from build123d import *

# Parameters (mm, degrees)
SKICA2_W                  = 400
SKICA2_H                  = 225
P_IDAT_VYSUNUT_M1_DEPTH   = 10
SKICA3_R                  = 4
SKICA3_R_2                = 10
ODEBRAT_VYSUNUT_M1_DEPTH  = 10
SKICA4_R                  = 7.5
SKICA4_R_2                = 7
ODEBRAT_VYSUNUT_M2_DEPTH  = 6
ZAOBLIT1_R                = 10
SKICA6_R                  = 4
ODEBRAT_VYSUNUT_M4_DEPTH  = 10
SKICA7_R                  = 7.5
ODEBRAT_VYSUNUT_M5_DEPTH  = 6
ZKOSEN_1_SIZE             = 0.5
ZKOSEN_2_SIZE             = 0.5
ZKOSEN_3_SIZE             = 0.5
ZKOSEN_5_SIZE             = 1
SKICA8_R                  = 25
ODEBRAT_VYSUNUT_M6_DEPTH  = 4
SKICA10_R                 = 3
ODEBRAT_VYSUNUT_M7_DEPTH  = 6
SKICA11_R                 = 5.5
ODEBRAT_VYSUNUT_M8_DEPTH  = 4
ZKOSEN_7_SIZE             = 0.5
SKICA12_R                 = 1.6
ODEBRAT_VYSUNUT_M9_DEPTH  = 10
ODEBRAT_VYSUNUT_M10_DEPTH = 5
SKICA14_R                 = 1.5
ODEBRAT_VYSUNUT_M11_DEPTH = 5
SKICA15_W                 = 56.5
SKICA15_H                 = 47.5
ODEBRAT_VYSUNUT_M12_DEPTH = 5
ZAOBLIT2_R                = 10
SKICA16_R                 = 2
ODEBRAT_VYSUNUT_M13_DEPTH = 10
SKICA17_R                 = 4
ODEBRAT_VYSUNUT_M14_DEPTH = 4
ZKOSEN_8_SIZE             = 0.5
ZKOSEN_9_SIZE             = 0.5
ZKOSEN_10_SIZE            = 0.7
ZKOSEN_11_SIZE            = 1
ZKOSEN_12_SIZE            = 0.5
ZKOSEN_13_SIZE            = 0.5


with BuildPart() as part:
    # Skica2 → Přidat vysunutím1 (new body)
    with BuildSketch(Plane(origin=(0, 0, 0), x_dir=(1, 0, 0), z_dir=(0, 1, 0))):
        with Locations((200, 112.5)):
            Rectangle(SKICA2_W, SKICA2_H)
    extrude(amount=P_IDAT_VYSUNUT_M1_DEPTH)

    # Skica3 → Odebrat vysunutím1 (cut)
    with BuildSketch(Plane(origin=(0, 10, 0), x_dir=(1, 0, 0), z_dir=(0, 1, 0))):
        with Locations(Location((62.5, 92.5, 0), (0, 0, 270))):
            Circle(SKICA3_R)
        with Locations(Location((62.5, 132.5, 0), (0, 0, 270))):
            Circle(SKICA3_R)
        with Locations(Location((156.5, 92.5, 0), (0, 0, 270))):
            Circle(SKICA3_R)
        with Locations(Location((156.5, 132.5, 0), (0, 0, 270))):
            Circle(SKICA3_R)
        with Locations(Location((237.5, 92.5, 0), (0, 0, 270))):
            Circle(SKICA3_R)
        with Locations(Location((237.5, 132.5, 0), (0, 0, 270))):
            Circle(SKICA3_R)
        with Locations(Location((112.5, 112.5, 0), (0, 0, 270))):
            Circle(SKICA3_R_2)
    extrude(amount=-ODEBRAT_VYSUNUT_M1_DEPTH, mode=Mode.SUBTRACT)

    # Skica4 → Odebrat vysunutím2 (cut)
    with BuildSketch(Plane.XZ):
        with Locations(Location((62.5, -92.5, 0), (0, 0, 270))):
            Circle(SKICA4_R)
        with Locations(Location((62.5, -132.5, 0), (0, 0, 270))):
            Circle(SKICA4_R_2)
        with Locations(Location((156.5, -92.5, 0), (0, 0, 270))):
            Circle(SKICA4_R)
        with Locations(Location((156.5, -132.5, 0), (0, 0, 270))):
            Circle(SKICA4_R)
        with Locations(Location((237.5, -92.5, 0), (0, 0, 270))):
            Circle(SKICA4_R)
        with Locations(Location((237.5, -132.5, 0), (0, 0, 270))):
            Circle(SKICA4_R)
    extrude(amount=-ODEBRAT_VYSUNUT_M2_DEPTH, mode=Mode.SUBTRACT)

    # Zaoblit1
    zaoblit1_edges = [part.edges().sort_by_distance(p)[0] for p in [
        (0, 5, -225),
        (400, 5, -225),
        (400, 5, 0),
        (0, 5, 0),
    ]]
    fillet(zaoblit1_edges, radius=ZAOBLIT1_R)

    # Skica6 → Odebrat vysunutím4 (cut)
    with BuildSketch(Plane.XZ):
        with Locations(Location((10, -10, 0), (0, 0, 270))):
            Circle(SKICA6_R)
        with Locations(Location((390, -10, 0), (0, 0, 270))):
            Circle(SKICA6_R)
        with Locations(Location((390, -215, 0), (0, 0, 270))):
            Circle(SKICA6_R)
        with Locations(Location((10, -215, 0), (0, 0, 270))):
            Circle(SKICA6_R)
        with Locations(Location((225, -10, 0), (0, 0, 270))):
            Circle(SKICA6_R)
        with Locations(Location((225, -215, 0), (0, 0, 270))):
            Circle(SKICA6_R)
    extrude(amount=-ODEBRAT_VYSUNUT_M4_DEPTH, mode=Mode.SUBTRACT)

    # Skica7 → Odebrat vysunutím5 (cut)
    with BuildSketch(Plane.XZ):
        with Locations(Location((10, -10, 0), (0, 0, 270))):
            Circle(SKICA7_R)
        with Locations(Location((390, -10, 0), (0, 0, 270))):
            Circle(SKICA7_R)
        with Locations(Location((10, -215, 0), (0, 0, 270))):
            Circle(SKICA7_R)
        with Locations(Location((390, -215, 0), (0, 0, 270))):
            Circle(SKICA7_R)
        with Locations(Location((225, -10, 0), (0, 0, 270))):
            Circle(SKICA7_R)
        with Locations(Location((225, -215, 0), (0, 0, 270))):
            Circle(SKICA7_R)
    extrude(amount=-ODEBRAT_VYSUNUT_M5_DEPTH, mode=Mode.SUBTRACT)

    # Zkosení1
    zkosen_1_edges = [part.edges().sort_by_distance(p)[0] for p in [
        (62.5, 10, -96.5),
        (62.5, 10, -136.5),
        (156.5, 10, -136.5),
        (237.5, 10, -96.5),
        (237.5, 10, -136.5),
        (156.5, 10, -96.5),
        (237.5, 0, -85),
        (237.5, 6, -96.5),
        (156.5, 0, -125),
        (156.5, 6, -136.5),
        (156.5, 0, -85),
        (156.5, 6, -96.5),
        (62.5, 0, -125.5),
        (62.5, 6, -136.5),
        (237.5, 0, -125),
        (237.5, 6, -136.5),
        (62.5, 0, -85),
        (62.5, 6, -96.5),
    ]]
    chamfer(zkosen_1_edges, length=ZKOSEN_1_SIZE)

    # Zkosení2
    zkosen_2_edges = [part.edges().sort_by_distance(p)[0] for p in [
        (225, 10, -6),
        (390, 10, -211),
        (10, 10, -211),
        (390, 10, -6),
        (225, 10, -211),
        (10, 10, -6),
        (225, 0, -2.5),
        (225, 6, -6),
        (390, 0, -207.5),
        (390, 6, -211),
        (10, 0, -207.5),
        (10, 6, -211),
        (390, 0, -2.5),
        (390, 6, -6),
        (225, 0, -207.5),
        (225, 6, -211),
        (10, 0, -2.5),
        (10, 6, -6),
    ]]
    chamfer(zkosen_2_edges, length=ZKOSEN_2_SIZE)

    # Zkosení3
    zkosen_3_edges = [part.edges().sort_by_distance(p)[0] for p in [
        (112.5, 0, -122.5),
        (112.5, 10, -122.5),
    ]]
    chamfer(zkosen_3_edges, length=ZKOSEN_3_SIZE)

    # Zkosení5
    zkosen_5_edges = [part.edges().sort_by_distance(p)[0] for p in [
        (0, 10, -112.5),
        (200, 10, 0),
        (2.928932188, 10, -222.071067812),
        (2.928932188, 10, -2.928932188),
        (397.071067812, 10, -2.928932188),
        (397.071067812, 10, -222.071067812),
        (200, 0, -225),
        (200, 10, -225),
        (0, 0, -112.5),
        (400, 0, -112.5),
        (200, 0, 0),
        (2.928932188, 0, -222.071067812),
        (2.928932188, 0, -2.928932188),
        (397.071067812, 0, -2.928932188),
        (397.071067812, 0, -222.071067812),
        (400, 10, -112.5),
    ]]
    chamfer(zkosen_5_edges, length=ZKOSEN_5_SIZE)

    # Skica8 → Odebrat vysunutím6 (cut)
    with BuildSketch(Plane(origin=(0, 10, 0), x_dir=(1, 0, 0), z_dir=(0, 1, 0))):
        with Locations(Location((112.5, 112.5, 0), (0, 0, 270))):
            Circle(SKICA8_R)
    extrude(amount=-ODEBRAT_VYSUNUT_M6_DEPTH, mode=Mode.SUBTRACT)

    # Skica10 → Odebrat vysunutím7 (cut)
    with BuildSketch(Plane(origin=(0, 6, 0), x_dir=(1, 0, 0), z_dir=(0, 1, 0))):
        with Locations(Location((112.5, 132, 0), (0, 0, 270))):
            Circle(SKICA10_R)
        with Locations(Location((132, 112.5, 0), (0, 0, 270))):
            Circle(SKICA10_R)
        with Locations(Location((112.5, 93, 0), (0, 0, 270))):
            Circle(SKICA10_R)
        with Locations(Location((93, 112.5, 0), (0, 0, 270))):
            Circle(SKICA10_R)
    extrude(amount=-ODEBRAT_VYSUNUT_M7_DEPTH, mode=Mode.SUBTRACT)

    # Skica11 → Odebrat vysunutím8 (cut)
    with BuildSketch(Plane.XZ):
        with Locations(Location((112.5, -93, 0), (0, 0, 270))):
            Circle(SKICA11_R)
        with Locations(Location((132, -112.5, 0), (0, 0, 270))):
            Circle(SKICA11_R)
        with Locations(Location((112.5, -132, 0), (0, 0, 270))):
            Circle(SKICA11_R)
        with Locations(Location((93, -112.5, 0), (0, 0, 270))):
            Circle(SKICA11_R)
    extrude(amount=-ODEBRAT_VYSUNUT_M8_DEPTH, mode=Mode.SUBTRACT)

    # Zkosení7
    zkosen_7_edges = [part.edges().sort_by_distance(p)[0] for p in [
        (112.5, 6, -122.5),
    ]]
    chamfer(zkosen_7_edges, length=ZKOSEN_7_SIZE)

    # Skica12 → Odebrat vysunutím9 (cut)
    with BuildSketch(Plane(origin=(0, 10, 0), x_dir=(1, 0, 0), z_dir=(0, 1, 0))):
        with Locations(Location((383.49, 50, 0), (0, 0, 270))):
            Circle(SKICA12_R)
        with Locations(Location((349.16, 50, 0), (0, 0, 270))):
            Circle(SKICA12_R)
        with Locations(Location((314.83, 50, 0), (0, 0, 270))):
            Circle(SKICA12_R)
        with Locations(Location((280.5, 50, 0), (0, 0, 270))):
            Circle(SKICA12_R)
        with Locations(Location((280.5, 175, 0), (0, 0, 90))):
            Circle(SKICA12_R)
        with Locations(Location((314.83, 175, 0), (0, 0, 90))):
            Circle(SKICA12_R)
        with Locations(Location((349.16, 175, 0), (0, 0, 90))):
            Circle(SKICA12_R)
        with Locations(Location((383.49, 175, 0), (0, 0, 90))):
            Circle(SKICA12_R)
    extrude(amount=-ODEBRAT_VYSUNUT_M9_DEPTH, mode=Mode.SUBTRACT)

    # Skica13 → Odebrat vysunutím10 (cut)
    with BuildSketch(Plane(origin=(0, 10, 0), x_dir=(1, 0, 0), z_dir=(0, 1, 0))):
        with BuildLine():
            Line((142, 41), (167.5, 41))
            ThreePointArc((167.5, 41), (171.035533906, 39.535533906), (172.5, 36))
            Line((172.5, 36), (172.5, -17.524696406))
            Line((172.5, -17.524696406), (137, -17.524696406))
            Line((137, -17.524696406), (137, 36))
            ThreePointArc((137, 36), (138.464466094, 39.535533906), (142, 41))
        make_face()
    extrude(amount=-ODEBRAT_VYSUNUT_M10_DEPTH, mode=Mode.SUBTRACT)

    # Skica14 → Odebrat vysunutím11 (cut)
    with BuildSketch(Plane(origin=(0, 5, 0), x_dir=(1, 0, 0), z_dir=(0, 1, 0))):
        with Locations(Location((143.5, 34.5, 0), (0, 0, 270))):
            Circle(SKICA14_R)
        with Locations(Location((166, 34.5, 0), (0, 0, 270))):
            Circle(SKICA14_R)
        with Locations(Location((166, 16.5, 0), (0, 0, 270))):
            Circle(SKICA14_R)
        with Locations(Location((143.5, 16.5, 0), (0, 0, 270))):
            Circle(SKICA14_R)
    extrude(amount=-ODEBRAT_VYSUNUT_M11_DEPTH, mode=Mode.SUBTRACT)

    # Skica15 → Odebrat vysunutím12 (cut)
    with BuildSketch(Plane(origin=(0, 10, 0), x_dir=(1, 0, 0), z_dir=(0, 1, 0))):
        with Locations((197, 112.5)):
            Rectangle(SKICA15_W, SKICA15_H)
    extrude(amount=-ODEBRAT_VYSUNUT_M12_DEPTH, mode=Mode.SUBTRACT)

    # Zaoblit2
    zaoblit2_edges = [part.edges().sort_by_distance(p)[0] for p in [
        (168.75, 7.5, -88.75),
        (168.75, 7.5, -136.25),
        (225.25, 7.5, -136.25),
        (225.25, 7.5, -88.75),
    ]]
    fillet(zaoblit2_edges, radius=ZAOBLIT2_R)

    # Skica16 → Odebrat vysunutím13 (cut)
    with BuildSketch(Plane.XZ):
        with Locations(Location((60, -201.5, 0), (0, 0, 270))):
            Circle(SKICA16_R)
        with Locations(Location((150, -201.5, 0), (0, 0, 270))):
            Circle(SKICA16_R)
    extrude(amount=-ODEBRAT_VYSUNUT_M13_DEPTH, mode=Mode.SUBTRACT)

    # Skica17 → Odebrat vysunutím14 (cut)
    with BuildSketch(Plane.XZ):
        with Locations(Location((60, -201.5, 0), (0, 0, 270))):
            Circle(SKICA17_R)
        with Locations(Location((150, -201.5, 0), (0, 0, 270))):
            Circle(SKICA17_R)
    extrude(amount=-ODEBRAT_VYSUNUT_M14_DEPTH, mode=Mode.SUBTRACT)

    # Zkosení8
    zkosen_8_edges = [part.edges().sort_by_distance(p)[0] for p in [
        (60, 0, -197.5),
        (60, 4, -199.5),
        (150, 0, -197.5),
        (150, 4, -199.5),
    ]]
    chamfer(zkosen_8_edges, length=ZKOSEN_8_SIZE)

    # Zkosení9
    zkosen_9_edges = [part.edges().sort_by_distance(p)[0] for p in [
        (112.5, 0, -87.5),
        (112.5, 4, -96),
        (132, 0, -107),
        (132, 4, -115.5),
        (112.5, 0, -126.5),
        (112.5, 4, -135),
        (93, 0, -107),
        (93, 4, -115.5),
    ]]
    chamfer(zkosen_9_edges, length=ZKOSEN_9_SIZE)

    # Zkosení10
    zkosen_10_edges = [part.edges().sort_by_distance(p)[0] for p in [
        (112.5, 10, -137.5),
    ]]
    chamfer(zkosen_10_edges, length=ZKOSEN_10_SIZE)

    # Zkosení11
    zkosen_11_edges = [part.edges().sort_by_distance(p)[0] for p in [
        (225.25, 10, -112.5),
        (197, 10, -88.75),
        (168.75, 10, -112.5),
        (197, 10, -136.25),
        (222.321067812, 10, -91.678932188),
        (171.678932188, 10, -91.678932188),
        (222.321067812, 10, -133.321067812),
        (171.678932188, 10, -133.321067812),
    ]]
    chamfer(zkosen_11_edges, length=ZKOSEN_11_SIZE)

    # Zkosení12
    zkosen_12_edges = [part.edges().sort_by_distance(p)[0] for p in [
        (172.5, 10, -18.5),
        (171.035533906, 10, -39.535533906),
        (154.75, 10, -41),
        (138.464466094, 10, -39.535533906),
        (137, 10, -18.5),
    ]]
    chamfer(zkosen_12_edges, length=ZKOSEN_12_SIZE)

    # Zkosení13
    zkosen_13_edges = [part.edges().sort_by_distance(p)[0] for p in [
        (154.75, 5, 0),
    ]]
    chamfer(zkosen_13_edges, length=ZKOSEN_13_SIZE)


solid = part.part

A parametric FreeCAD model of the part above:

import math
import FreeCAD as App
import Part
import Sketcher
Q = App.Units.Quantity


def edges_at(feature, points):
    """Names of the edges that pass closest to the given points."""
    edges = feature.Shape.Edges
    near = lambda p: min(range(len(edges)), key=lambda i: edges[i].distToShape(Part.Vertex(*p))[0])
    return sorted({f"Edge{near(p) + 1}" for p in points})

doc = App.newDocument("Part")
body = doc.addObject("PartDesign::Body", "Body")

# Sketch on XZ plane
sketch1 = body.newObject("Sketcher::SketchObject", "Sketch")
sketch1.AttachmentSupport = (doc.getObject("XZ_Plane"), [""])
sketch1.MapMode = "FlatFace"
sketch1.addGeometry([
    Part.LineSegment(App.Vector(0, -225, 0), App.Vector(0, 0, 0)),
    Part.LineSegment(App.Vector(0, 0, 0), App.Vector(400, 0, 0)),
    Part.LineSegment(App.Vector(400, 0, 0), App.Vector(400, -225, 0)),
    Part.LineSegment(App.Vector(400, -225, 0), App.Vector(0, -225, 0)),
], False)
sketch1.addConstraint([
    Sketcher.Constraint("Coincident", 0, 2, 1, 1),
    Sketcher.Constraint("Coincident", 1, 2, 2, 1),
    Sketcher.Constraint("Coincident", 2, 2, 3, 1),
    Sketcher.Constraint("Coincident", 3, 2, 0, 1),
    Sketcher.Constraint("Vertical", 0),
    Sketcher.Constraint("Horizontal", 1),
    Sketcher.Constraint("Vertical", 2),
    Sketcher.Constraint("Horizontal", 3),
    Sketcher.Constraint("Coincident", 0, 2, -1, 1),
    Sketcher.Constraint("DistanceX", 1, 1, 1, 2, Q("400 mm")),
    Sketcher.Constraint("DistanceY", 0, 1, 0, 2, Q("225 mm")),
])
pad1 = body.newObject("PartDesign::Pad", "Pad")
pad1.Profile = sketch1
pad1.Length = 10
pad1.Reversed = True

# Sketch on XZ plane
sketch2 = body.newObject("Sketcher::SketchObject", "Sketch001")
sketch2.AttachmentSupport = (doc.getObject("XZ_Plane"), [""])
sketch2.MapMode = "FlatFace"
sketch2.AttachmentOffset = App.Placement(App.Vector(0, 0, -10), App.Rotation())
sketch2.addGeometry([
    Part.Circle(App.Vector(62.5, -92.5, 0), App.Vector(0, 0, 1), 4),  # 0
    Part.Circle(App.Vector(62.5, -132.5, 0), App.Vector(0, 0, 1), 4),  # 1
    Part.Circle(App.Vector(156.5, -92.5, 0), App.Vector(0, 0, 1), 4),  # 2
    Part.Circle(App.Vector(156.5, -132.5, 0), App.Vector(0, 0, 1), 4),  # 3
    Part.Circle(App.Vector(237.5, -92.5, 0), App.Vector(0, 0, 1), 4),  # 4
    Part.Circle(App.Vector(237.5, -132.5, 0), App.Vector(0, 0, 1), 4),  # 5
    Part.Circle(App.Vector(112.5, -112.5, 0), App.Vector(0, 0, 1), 10),  # 6
], False)
sketch2.addConstraint([
    Sketcher.Constraint("Equal", 0, 1),
    Sketcher.Constraint("Equal", 1, 2),
    Sketcher.Constraint("Equal", 2, 3),
    Sketcher.Constraint("Equal", 3, 4),
    Sketcher.Constraint("Equal", 4, 5),
    Sketcher.Constraint("Horizontal", 0, 3, 2, 3),
    Sketcher.Constraint("Horizontal", 1, 3, 3, 3),
    Sketcher.Constraint("Horizontal", 2, 3, 4, 3),
    Sketcher.Constraint("Horizontal", 3, 3, 5, 3),
    Sketcher.Constraint("Vertical", 0, 3, 1, 3),
    Sketcher.Constraint("Vertical", 2, 3, 3, 3),
    Sketcher.Constraint("Vertical", 4, 3, 5, 3),
    Sketcher.Constraint("Diameter", 0, Q("8 mm")),
    Sketcher.Constraint("Diameter", 6, Q("20 mm")),
    Sketcher.Constraint("DistanceY", 1, 3, 0, 3, Q("40 mm")),
    Sketcher.Constraint("DistanceX", 0, 3, 2, 3, Q("94 mm")),
    Sketcher.Constraint("DistanceX", 2, 3, 4, 3, Q("81 mm")),
    Sketcher.Constraint("DistanceX", 6, 3, 2, 3, Q("44 mm")),
    Sketcher.Constraint("DistanceY", 6, 3, 2, 3, Q("20 mm")),
    Sketcher.Constraint("DistanceX", -1, 1, 0, 3, Q("62.5 mm")),
    Sketcher.Constraint("DistanceY", 0, 3, -1, 1, Q("92.5 mm")),
])
pocket1 = body.newObject("PartDesign::Pocket", "Pocket")
pocket1.Profile = sketch2
pocket1.Length = 10
pocket1.Reversed = True

# Sketch on XZ plane
sketch3 = body.newObject("Sketcher::SketchObject", "Sketch002")
sketch3.AttachmentSupport = (doc.getObject("XZ_Plane"), [""])
sketch3.MapMode = "FlatFace"
sketch3.addGeometry([
    Part.Circle(App.Vector(62, -92, 0), App.Vector(0, 0, 1), 8),  # 0
    Part.Circle(App.Vector(62, -132, 0), App.Vector(0, 0, 1), 7),  # 1
    Part.Circle(App.Vector(156, -92, 0), App.Vector(0, 0, 1), 8),  # 2
    Part.Circle(App.Vector(156, -132, 0), App.Vector(0, 0, 1), 8),  # 3
    Part.Circle(App.Vector(238, -92, 0), App.Vector(0, 0, 1), 8),  # 4
    Part.Circle(App.Vector(238, -132, 0), App.Vector(0, 0, 1), 8),  # 5
], False)
sketch3.addConstraint([
    Sketcher.Constraint("Equal", 0, 2),
    Sketcher.Constraint("Equal", 2, 3),
    Sketcher.Constraint("Equal", 3, 4),
    Sketcher.Constraint("Equal", 4, 5),
    Sketcher.Constraint("Horizontal", 0, 3, 2, 3),
    Sketcher.Constraint("Horizontal", 1, 3, 3, 3),
    Sketcher.Constraint("Horizontal", 2, 3, 4, 3),
    Sketcher.Constraint("Horizontal", 3, 3, 5, 3),
    Sketcher.Constraint("Vertical", 0, 3, 1, 3),
    Sketcher.Constraint("Vertical", 2, 3, 3, 3),
    Sketcher.Constraint("Vertical", 4, 3, 5, 3),
    Sketcher.Constraint("Diameter", 0, Q("15 mm")),
    Sketcher.Constraint("Diameter", 1, Q("14 mm")),
    Sketcher.Constraint("DistanceY", 1, 3, 0, 3, Q("40 mm")),
    Sketcher.Constraint("DistanceX", 0, 3, 2, 3, Q("94 mm")),
    Sketcher.Constraint("DistanceX", 2, 3, 4, 3, Q("81 mm")),
    Sketcher.Constraint("DistanceX", -1, 1, 0, 3, Q("62.5 mm")),
    Sketcher.Constraint("DistanceY", 0, 3, -1, 1, Q("92.5 mm")),
])
pocket2 = body.newObject("PartDesign::Pocket", "Pocket001")
pocket2.Profile = sketch3
pocket2.Length = 6
doc.recompute()

fillet = body.newObject("PartDesign::Fillet", "Fillet")
fillet.Base = (pocket2, edges_at(pocket2, [
    (0, 5, -225),
    (400, 5, -225),
    (400, 5, 0),
    (0, 5, 0),
]))
fillet.Radius = 10

# Sketch on XZ plane
sketch4 = body.newObject("Sketcher::SketchObject", "Sketch003")
sketch4.AttachmentSupport = (doc.getObject("XZ_Plane"), [""])
sketch4.MapMode = "FlatFace"
sketch4.addGeometry([
    Part.Circle(App.Vector(10, -10, 0), App.Vector(0, 0, 1), 4),  # 0
    Part.Circle(App.Vector(390, -10, 0), App.Vector(0, 0, 1), 4),  # 1
    Part.Circle(App.Vector(390, -215, 0), App.Vector(0, 0, 1), 4),  # 2
    Part.Circle(App.Vector(10, -215, 0), App.Vector(0, 0, 1), 4),  # 3
    Part.Circle(App.Vector(225, -10, 0), App.Vector(0, 0, 1), 4),  # 4
    Part.Circle(App.Vector(225, -215, 0), App.Vector(0, 0, 1), 4),  # 5
], False)
sketch4.addConstraint([
    Sketcher.Constraint("Equal", 0, 1),
    Sketcher.Constraint("Equal", 1, 2),
    Sketcher.Constraint("Equal", 2, 3),
    Sketcher.Constraint("Equal", 3, 4),
    Sketcher.Constraint("Equal", 4, 5),
    Sketcher.Constraint("Horizontal", 0, 3, 1, 3),
    Sketcher.Constraint("Horizontal", 2, 3, 3, 3),
    Sketcher.Constraint("Horizontal", 1, 3, 4, 3),
    Sketcher.Constraint("Horizontal", 3, 3, 5, 3),
    Sketcher.Constraint("Vertical", 1, 3, 2, 3),
    Sketcher.Constraint("Vertical", 0, 3, 3, 3),
    Sketcher.Constraint("Vertical", 4, 3, 5, 3),
    Sketcher.Constraint("Diameter", 0, Q("8 mm")),
    Sketcher.Constraint("DistanceX", -1, 1, 0, 3, Q("10 mm")),
    Sketcher.Constraint("DistanceY", 0, 3, -1, 1, Q("10 mm")),
    Sketcher.Constraint("DistanceX", -1, 1, 1, 3, Q("390 mm")),
    Sketcher.Constraint("DistanceY", 2, 3, -1, 1, Q("215 mm")),
    Sketcher.Constraint("DistanceX", -1, 1, 4, 3, Q("225 mm")),
])
pocket3 = body.newObject("PartDesign::Pocket", "Pocket002")
pocket3.Profile = sketch4
pocket3.Length = 10

# Sketch on XZ plane
sketch5 = body.newObject("Sketcher::SketchObject", "Sketch004")
sketch5.AttachmentSupport = (doc.getObject("XZ_Plane"), [""])
sketch5.MapMode = "FlatFace"
sketch5.addGeometry([
    Part.Circle(App.Vector(10, -10, 0), App.Vector(0, 0, 1), 8),  # 0
    Part.Circle(App.Vector(390, -10, 0), App.Vector(0, 0, 1), 8),  # 1
    Part.Circle(App.Vector(10, -215, 0), App.Vector(0, 0, 1), 8),  # 2
    Part.Circle(App.Vector(390, -215, 0), App.Vector(0, 0, 1), 8),  # 3
    Part.Circle(App.Vector(225, -10, 0), App.Vector(0, 0, 1), 8),  # 4
    Part.Circle(App.Vector(225, -215, 0), App.Vector(0, 0, 1), 8),  # 5
], False)
sketch5.addConstraint([
    Sketcher.Constraint("Equal", 0, 1),
    Sketcher.Constraint("Equal", 1, 2),
    Sketcher.Constraint("Equal", 2, 3),
    Sketcher.Constraint("Equal", 3, 4),
    Sketcher.Constraint("Equal", 4, 5),
    Sketcher.Constraint("Horizontal", 0, 3, 1, 3),
    Sketcher.Constraint("Horizontal", 2, 3, 3, 3),
    Sketcher.Constraint("Horizontal", 1, 3, 4, 3),
    Sketcher.Constraint("Horizontal", 3, 3, 5, 3),
    Sketcher.Constraint("Vertical", 0, 3, 2, 3),
    Sketcher.Constraint("Vertical", 1, 3, 3, 3),
    Sketcher.Constraint("Vertical", 4, 3, 5, 3),
    Sketcher.Constraint("Diameter", 0, Q("15 mm")),
    Sketcher.Constraint("DistanceX", -1, 1, 0, 3, Q("10 mm")),
    Sketcher.Constraint("DistanceY", 0, 3, -1, 1, Q("10 mm")),
    Sketcher.Constraint("DistanceX", -1, 1, 1, 3, Q("390 mm")),
    Sketcher.Constraint("DistanceY", 2, 3, -1, 1, Q("215 mm")),
    Sketcher.Constraint("DistanceX", -1, 1, 4, 3, Q("225 mm")),
])
pocket4 = body.newObject("PartDesign::Pocket", "Pocket003")
pocket4.Profile = sketch5
pocket4.Length = 6
doc.recompute()

chamfer = body.newObject("PartDesign::Chamfer", "Chamfer")
chamfer.Base = (pocket4, edges_at(pocket4, [
    (62.5, 10, -96.5),
    (62.5, 10, -136.5),
    (156.5, 10, -136.5),
    (237.5, 10, -96.5),
    (237.5, 10, -136.5),
    (156.5, 10, -96.5),
    (237.5, 0, -85),
    (237.5, 6, -96.5),
    (156.5, 0, -125),
    (156.5, 6, -136.5),
    (156.5, 0, -85),
    (156.5, 6, -96.5),
    (62.5, 0, -125.5),
    (62.5, 6, -136.5),
    (237.5, 0, -125),
    (237.5, 6, -136.5),
    (62.5, 0, -85),
    (62.5, 6, -96.5),
]))
chamfer.Size = 0.5
doc.recompute()

chamfer2 = body.newObject("PartDesign::Chamfer", "Chamfer001")
chamfer2.Base = (chamfer, edges_at(chamfer, [
    (225, 10, -6),
    (390, 10, -211),
    (10, 10, -211),
    (390, 10, -6),
    (225, 10, -211),
    (10, 10, -6),
    (225, 0, -2.5),
    (225, 6, -6),
    (390, 0, -207.5),
    (390, 6, -211),
    (10, 0, -207.5),
    (10, 6, -211),
    (390, 0, -2.5),
    (390, 6, -6),
    (225, 0, -207.5),
    (225, 6, -211),
    (10, 0, -2.5),
    (10, 6, -6),
]))
chamfer2.Size = 0.5
doc.recompute()

chamfer3 = body.newObject("PartDesign::Chamfer", "Chamfer002")
chamfer3.Base = (chamfer2, edges_at(chamfer2, [(112.5, 0, -122.5), (112.5, 10, -122.5)]))
chamfer3.Size = 0.5
doc.recompute()

chamfer4 = body.newObject("PartDesign::Chamfer", "Chamfer003")
chamfer4.Base = (chamfer3, edges_at(chamfer3, [
    (0, 10, -112.5),
    (200, 10, 0),
    (2.929, 10, -222.071),
    (2.929, 10, -2.929),
    (397.071, 10, -2.929),
    (397.071, 10, -222.071),
    (200, 0, -225),
    (200, 10, -225),
    (0, 0, -112.5),
    (400, 0, -112.5),
    (200, 0, 0),
    (2.929, 0, -222.071),
    (2.929, 0, -2.929),
    (397.071, 0, -2.929),
    (397.071, 0, -222.071),
    (400, 10, -112.5),
]))
chamfer4.Size = 1

# Sketch on XZ plane
sketch6 = body.newObject("Sketcher::SketchObject", "Sketch005")
sketch6.AttachmentSupport = (doc.getObject("XZ_Plane"), [""])
sketch6.MapMode = "FlatFace"
sketch6.AttachmentOffset = App.Placement(App.Vector(0, 0, -10), App.Rotation())
sketch6.addGeometry(Part.Circle(App.Vector(112, -112, 0), App.Vector(0, 0, 1), 25), False)
sketch6.addConstraint([
    Sketcher.Constraint("Diameter", 0, Q("50 mm")),
    Sketcher.Constraint("DistanceX", -1, 1, 0, 3, Q("112.5 mm")),
    Sketcher.Constraint("DistanceY", 0, 3, -1, 1, Q("112.5 mm")),
])
pocket5 = body.newObject("PartDesign::Pocket", "Pocket004")
pocket5.Profile = sketch6
pocket5.Length = 4
pocket5.Reversed = True

# Sketch on XZ plane
sketch7 = body.newObject("Sketcher::SketchObject", "Sketch006")
sketch7.AttachmentSupport = (doc.getObject("XZ_Plane"), [""])
sketch7.MapMode = "FlatFace"
sketch7.AttachmentOffset = App.Placement(App.Vector(0, 0, -6), App.Rotation())
sketch7.addGeometry([
    Part.Circle(App.Vector(112.5, -132, 0), App.Vector(0, 0, 1), 3),
    Part.Circle(App.Vector(132, -112.5, 0), App.Vector(0, 0, 1), 3),
    Part.Circle(App.Vector(112.5, -93, 0), App.Vector(0, 0, 1), 3),
    Part.Circle(App.Vector(93, -112.5, 0), App.Vector(0, 0, 1), 3),
], False)
sketch7.addConstraint([
    Sketcher.Constraint("Equal", 0, 1),
    Sketcher.Constraint("Equal", 1, 2),
    Sketcher.Constraint("Equal", 2, 3),
    Sketcher.Constraint("Horizontal", 1, 3, 3, 3),
    Sketcher.Constraint("Vertical", 0, 3, 2, 3),
    Sketcher.Constraint("Diameter", 0, Q("6 mm")),
    Sketcher.Constraint("DistanceY", 0, 3, -1, 1, Q("132 mm")),
    Sketcher.Constraint("DistanceX", -1, 1, 1, 3, Q("132 mm")),
    Sketcher.Constraint("DistanceY", 2, 3, -1, 1, Q("93 mm")),
    Sketcher.Constraint("DistanceX", -1, 1, 3, 3, Q("93 mm")),
    Sketcher.Constraint("DistanceX", -1, 1, 0, 3, Q("112.5 mm")),
    Sketcher.Constraint("DistanceY", 1, 3, -1, 1, Q("112.5 mm")),
])
pocket6 = body.newObject("PartDesign::Pocket", "Pocket005")
pocket6.Profile = sketch7
pocket6.Length = 6
pocket6.Reversed = True

# Sketch on XZ plane
sketch8 = body.newObject("Sketcher::SketchObject", "Sketch007")
sketch8.AttachmentSupport = (doc.getObject("XZ_Plane"), [""])
sketch8.MapMode = "FlatFace"
sketch8.addGeometry([
    Part.Circle(App.Vector(112, -93, 0), App.Vector(0, 0, 1), 6),
    Part.Circle(App.Vector(132, -112, 0), App.Vector(0, 0, 1), 6),
    Part.Circle(App.Vector(112, -132, 0), App.Vector(0, 0, 1), 6),
    Part.Circle(App.Vector(93, -112, 0), App.Vector(0, 0, 1), 6),
], False)
sketch8.addConstraint([
    Sketcher.Constraint("Equal", 0, 1),
    Sketcher.Constraint("Equal", 1, 2),
    Sketcher.Constraint("Equal", 2, 3),
    Sketcher.Constraint("Horizontal", 1, 3, 3, 3),
    Sketcher.Constraint("Vertical", 0, 3, 2, 3),
    Sketcher.Constraint("Diameter", 0, Q("11 mm")),
    Sketcher.Constraint("DistanceY", 0, 3, -1, 1, Q("93 mm")),
    Sketcher.Constraint("DistanceX", -1, 1, 1, 3, Q("132 mm")),
    Sketcher.Constraint("DistanceY", 2, 3, -1, 1, Q("132 mm")),
    Sketcher.Constraint("DistanceX", -1, 1, 3, 3, Q("93 mm")),
    Sketcher.Constraint("DistanceX", -1, 1, 0, 3, Q("112.5 mm")),
    Sketcher.Constraint("DistanceY", 1, 3, -1, 1, Q("112.5 mm")),
])
pocket7 = body.newObject("PartDesign::Pocket", "Pocket006")
pocket7.Profile = sketch8
pocket7.Length = 4
doc.recompute()

chamfer5 = body.newObject("PartDesign::Chamfer", "Chamfer004")
chamfer5.Base = (pocket7, edges_at(pocket7, [(112.5, 6, -122.5)]))
chamfer5.Size = 0.5

# Sketch on XZ plane
sketch9 = body.newObject("Sketcher::SketchObject", "Sketch008")
sketch9.AttachmentSupport = (doc.getObject("XZ_Plane"), [""])
sketch9.MapMode = "FlatFace"
sketch9.AttachmentOffset = App.Placement(App.Vector(0, 0, -10), App.Rotation())
sketch9.addGeometry([
    Part.Circle(App.Vector(383.5, -50, 0), App.Vector(0, 0, 1), 1.6),  # 0
    Part.Circle(App.Vector(349.2, -50, 0), App.Vector(0, 0, 1), 1.6),  # 1
    Part.Circle(App.Vector(314.8, -50, 0), App.Vector(0, 0, 1), 1.6),  # 2
    Part.Circle(App.Vector(280.5, -50, 0), App.Vector(0, 0, 1), 1.6),  # 3
    Part.Circle(App.Vector(280.5, -175, 0), App.Vector(0, 0, 1), 1.6),  # 4
    Part.Circle(App.Vector(314.8, -175, 0), App.Vector(0, 0, 1), 1.6),  # 5
    Part.Circle(App.Vector(349.2, -175, 0), App.Vector(0, 0, 1), 1.6),  # 6
    Part.Circle(App.Vector(383.5, -175, 0), App.Vector(0, 0, 1), 1.6),  # 7
], False)
sketch9.addConstraint([
    Sketcher.Constraint("Equal", 0, 1),
    Sketcher.Constraint("Equal", 1, 2),
    Sketcher.Constraint("Equal", 2, 3),
    Sketcher.Constraint("Equal", 3, 4),
    Sketcher.Constraint("Equal", 4, 5),
    Sketcher.Constraint("Equal", 5, 6),
    Sketcher.Constraint("Equal", 6, 7),
    Sketcher.Constraint("Horizontal", 0, 3, 1, 3),
    Sketcher.Constraint("Horizontal", 1, 3, 2, 3),
    Sketcher.Constraint("Horizontal", 2, 3, 3, 3),
    Sketcher.Constraint("Horizontal", 4, 3, 5, 3),
    Sketcher.Constraint("Horizontal", 5, 3, 6, 3),
    Sketcher.Constraint("Horizontal", 6, 3, 7, 3),
    Sketcher.Constraint("Vertical", 3, 3, 4, 3),
    Sketcher.Constraint("Vertical", 2, 3, 5, 3),
    Sketcher.Constraint("Vertical", 1, 3, 6, 3),
    Sketcher.Constraint("Vertical", 0, 3, 7, 3),
    Sketcher.Constraint("Diameter", 0, Q("3.2 mm")),
    Sketcher.Constraint("DistanceY", 0, 3, -1, 1, Q("50 mm")),
    Sketcher.Constraint("DistanceY", 4, 3, -1, 1, Q("175 mm")),
    Sketcher.Constraint("DistanceX", -1, 1, 3, 3, Q("280.5 mm")),
    Sketcher.Constraint("DistanceX", -1, 1, 0, 3, Q("383.49 mm")),
    Sketcher.Constraint("DistanceX", -1, 1, 1, 3, Q("349.16 mm")),
    Sketcher.Constraint("DistanceX", -1, 1, 2, 3, Q("314.83 mm")),
])
pocket8 = body.newObject("PartDesign::Pocket", "Pocket007")
pocket8.Profile = sketch9
pocket8.Length = 10
pocket8.Reversed = True

# Sketch on XZ plane
sketch10 = body.newObject("Sketcher::SketchObject", "Sketch009")
sketch10.AttachmentSupport = (doc.getObject("XZ_Plane"), [""])
sketch10.MapMode = "FlatFace"
sketch10.AttachmentOffset = App.Placement(App.Vector(0, 0, -10), App.Rotation())
sketch10.addGeometry([
    Part.LineSegment(App.Vector(168, -41, 0), App.Vector(142, -41, 0)),  # 0
    Part.ArcOfCircle(Part.Circle(App.Vector(142, -36, 0), App.Vector(0, 0, 1), 5), math.radians(180), math.radians(270)),  # 1
    Part.LineSegment(App.Vector(137, -36, 0), App.Vector(137, 18, 0)),  # 2
    Part.LineSegment(App.Vector(137, 18, 0), App.Vector(172, 18, 0)),  # 3
    Part.LineSegment(App.Vector(172, 18, 0), App.Vector(172, -36, 0)),  # 4
    Part.ArcOfCircle(Part.Circle(App.Vector(168, -36, 0), App.Vector(0, 0, 1), 5), math.radians(-90), math.radians(0)),  # 5
], False)
sketch10.addConstraint([
    Sketcher.Constraint("Tangent", 0, 2, 1, 2),
    Sketcher.Constraint("Tangent", 1, 1, 2, 1),
    Sketcher.Constraint("Coincident", 2, 2, 3, 1),
    Sketcher.Constraint("Coincident", 3, 2, 4, 1),
    Sketcher.Constraint("Tangent", 4, 2, 5, 2),
    Sketcher.Constraint("Tangent", 5, 1, 0, 1),
    Sketcher.Constraint("Horizontal", 0),
    Sketcher.Constraint("Vertical", 2),
    Sketcher.Constraint("Horizontal", 3),
    Sketcher.Constraint("Vertical", 4),
    Sketcher.Constraint("Equal", 1, 5),
    Sketcher.Constraint("Radius", 1, Q("5 mm")),
    Sketcher.Constraint("DistanceX", 0, 2, 0, 1, Q("25.5 mm")),
    Sketcher.Constraint("DistanceX", -1, 1, 1, 3, Q("142 mm")),
    Sketcher.Constraint("DistanceY", 1, 3, -1, 1, Q("36 mm")),
    Sketcher.Constraint("DistanceY", 2, 1, 2, 2, Q("53.524696 mm")),
])
pocket9 = body.newObject("PartDesign::Pocket", "Pocket008")
pocket9.Profile = sketch10
pocket9.Length = 5
pocket9.Reversed = True

# Sketch on XZ plane
sketch11 = body.newObject("Sketcher::SketchObject", "Sketch010")
sketch11.AttachmentSupport = (doc.getObject("XZ_Plane"), [""])
sketch11.MapMode = "FlatFace"
sketch11.AttachmentOffset = App.Placement(App.Vector(0, 0, -5), App.Rotation())
sketch11.addGeometry([
    Part.Circle(App.Vector(143.5, -34.5, 0), App.Vector(0, 0, 1), 1.5),
    Part.Circle(App.Vector(166, -34.5, 0), App.Vector(0, 0, 1), 1.5),
    Part.Circle(App.Vector(166, -16.5, 0), App.Vector(0, 0, 1), 1.5),
    Part.Circle(App.Vector(143.5, -16.5, 0), App.Vector(0, 0, 1), 1.5),
], False)
sketch11.addConstraint([
    Sketcher.Constraint("Equal", 0, 1),
    Sketcher.Constraint("Equal", 1, 2),
    Sketcher.Constraint("Equal", 2, 3),
    Sketcher.Constraint("Horizontal", 0, 3, 1, 3),
    Sketcher.Constraint("Horizontal", 2, 3, 3, 3),
    Sketcher.Constraint("Vertical", 1, 3, 2, 3),
    Sketcher.Constraint("Vertical", 0, 3, 3, 3),
    Sketcher.Constraint("Diameter", 0, Q("3 mm")),
    Sketcher.Constraint("DistanceX", -1, 1, 1, 3, Q("166 mm")),
    Sketcher.Constraint("DistanceY", 1, 3, 2, 3, Q("18 mm")),
    Sketcher.Constraint("DistanceX", -1, 1, 0, 3, Q("143.5 mm")),
    Sketcher.Constraint("DistanceY", 0, 3, -1, 1, Q("34.5 mm")),
])
pocket10 = body.newObject("PartDesign::Pocket", "Pocket009")
pocket10.Profile = sketch11
pocket10.Length = 5
pocket10.Reversed = True

# Sketch on XZ plane
sketch12 = body.newObject("Sketcher::SketchObject", "Sketch011")
sketch12.AttachmentSupport = (doc.getObject("XZ_Plane"), [""])
sketch12.MapMode = "FlatFace"
sketch12.AttachmentOffset = App.Placement(App.Vector(0, 0, -10), App.Rotation())
sketch12.addGeometry([
    Part.LineSegment(App.Vector(169, -136, 0), App.Vector(169, -89, 0)),
    Part.LineSegment(App.Vector(169, -89, 0), App.Vector(225, -89, 0)),
    Part.LineSegment(App.Vector(225, -89, 0), App.Vector(225, -136, 0)),
    Part.LineSegment(App.Vector(225, -136, 0), App.Vector(169, -136, 0)),
], False)
sketch12.addConstraint([
    Sketcher.Constraint("Coincident", 0, 2, 1, 1),
    Sketcher.Constraint("Coincident", 1, 2, 2, 1),
    Sketcher.Constraint("Coincident", 2, 2, 3, 1),
    Sketcher.Constraint("Coincident", 3, 2, 0, 1),
    Sketcher.Constraint("Vertical", 0),
    Sketcher.Constraint("Horizontal", 1),
    Sketcher.Constraint("Vertical", 2),
    Sketcher.Constraint("Horizontal", 3),
    Sketcher.Constraint("DistanceX", 1, 1, 1, 2, Q("56.5 mm")),
    Sketcher.Constraint("DistanceY", 0, 1, 0, 2, Q("47.5 mm")),
    Sketcher.Constraint("DistanceX", -1, 1, 0, 2, Q("168.75 mm")),
    Sketcher.Constraint("DistanceY", 0, 2, -1, 1, Q("88.75 mm")),
])
pocket11 = body.newObject("PartDesign::Pocket", "Pocket010")
pocket11.Profile = sketch12
pocket11.Length = 5
pocket11.Reversed = True
doc.recompute()

fillet2 = body.newObject("PartDesign::Fillet", "Fillet001")
fillet2.Base = (pocket11, edges_at(pocket11, [
    (168.75, 7.5, -88.75),
    (168.75, 7.5, -136.25),
    (225.25, 7.5, -136.25),
    (225.25, 7.5, -88.75),
]))
fillet2.Radius = 10

# Sketch on XZ plane
sketch13 = body.newObject("Sketcher::SketchObject", "Sketch012")
sketch13.AttachmentSupport = (doc.getObject("XZ_Plane"), [""])
sketch13.MapMode = "FlatFace"
sketch13.addGeometry([
    Part.Circle(App.Vector(60, -201.5, 0), App.Vector(0, 0, 1), 2),
    Part.Circle(App.Vector(150, -201.5, 0), App.Vector(0, 0, 1), 2),
], False)
sketch13.addConstraint([
    Sketcher.Constraint("Equal", 0, 1),
    Sketcher.Constraint("Horizontal", 0, 3, 1, 3),
    Sketcher.Constraint("Diameter", 0, Q("4 mm")),
    Sketcher.Constraint("DistanceX", -1, 1, 0, 3, Q("60 mm")),
    Sketcher.Constraint("DistanceX", -1, 1, 1, 3, Q("150 mm")),
    Sketcher.Constraint("DistanceY", 0, 3, -1, 1, Q("201.5 mm")),
])
pocket12 = body.newObject("PartDesign::Pocket", "Pocket011")
pocket12.Profile = sketch13
pocket12.Length = 10

# Sketch on XZ plane
sketch14 = body.newObject("Sketcher::SketchObject", "Sketch013")
sketch14.AttachmentSupport = (doc.getObject("XZ_Plane"), [""])
sketch14.MapMode = "FlatFace"
sketch14.addGeometry([
    Part.Circle(App.Vector(60, -201.5, 0), App.Vector(0, 0, 1), 4),
    Part.Circle(App.Vector(150, -201.5, 0), App.Vector(0, 0, 1), 4),
], False)
sketch14.addConstraint([
    Sketcher.Constraint("Equal", 0, 1),
    Sketcher.Constraint("Horizontal", 0, 3, 1, 3),
    Sketcher.Constraint("Diameter", 0, Q("8 mm")),
    Sketcher.Constraint("DistanceX", -1, 1, 0, 3, Q("60 mm")),
    Sketcher.Constraint("DistanceX", -1, 1, 1, 3, Q("150 mm")),
    Sketcher.Constraint("DistanceY", 0, 3, -1, 1, Q("201.5 mm")),
])
pocket13 = body.newObject("PartDesign::Pocket", "Pocket012")
pocket13.Profile = sketch14
pocket13.Length = 4
doc.recompute()

chamfer6 = body.newObject("PartDesign::Chamfer", "Chamfer005")
chamfer6.Base = (pocket13, edges_at(pocket13, [
    (60, 0, -197.5),
    (60, 4, -199.5),
    (150, 0, -197.5),
    (150, 4, -199.5),
]))
chamfer6.Size = 0.5
doc.recompute()

chamfer7 = body.newObject("PartDesign::Chamfer", "Chamfer006")
chamfer7.Base = (chamfer6, edges_at(chamfer6, [
    (112.5, 0, -87.5),
    (112.5, 4, -96),
    (132, 0, -107),
    (132, 4, -115.5),
    (112.5, 0, -126.5),
    (112.5, 4, -135),
    (93, 0, -107),
    (93, 4, -115.5),
]))
chamfer7.Size = 0.5
doc.recompute()

chamfer8 = body.newObject("PartDesign::Chamfer", "Chamfer007")
chamfer8.Base = (chamfer7, edges_at(chamfer7, [(112.5, 10, -137.5)]))
chamfer8.Size = 0.7
doc.recompute()

chamfer9 = body.newObject("PartDesign::Chamfer", "Chamfer008")
chamfer9.Base = (chamfer8, edges_at(chamfer8, [
    (225.25, 10, -112.5),
    (197, 10, -88.75),
    (168.75, 10, -112.5),
    (197, 10, -136.25),
    (222.321, 10, -91.679),
    (171.679, 10, -91.679),
    (222.321, 10, -133.321),
    (171.679, 10, -133.321),
]))
chamfer9.Size = 1
doc.recompute()

chamfer10 = body.newObject("PartDesign::Chamfer", "Chamfer009")
chamfer10.Base = (chamfer9, edges_at(chamfer9, [
    (172.5, 10, -18.5),
    (171.036, 10, -39.536),
    (154.75, 10, -41),
    (138.464, 10, -39.536),
    (137, 10, -18.5),
]))
chamfer10.Size = 0.5
doc.recompute()

chamfer11 = body.newObject("PartDesign::Chamfer", "Chamfer010")
chamfer11.Base = (chamfer10, edges_at(chamfer10, [(154.75, 5, 0)]))
chamfer11.Size = 0.5

doc.recompute()
